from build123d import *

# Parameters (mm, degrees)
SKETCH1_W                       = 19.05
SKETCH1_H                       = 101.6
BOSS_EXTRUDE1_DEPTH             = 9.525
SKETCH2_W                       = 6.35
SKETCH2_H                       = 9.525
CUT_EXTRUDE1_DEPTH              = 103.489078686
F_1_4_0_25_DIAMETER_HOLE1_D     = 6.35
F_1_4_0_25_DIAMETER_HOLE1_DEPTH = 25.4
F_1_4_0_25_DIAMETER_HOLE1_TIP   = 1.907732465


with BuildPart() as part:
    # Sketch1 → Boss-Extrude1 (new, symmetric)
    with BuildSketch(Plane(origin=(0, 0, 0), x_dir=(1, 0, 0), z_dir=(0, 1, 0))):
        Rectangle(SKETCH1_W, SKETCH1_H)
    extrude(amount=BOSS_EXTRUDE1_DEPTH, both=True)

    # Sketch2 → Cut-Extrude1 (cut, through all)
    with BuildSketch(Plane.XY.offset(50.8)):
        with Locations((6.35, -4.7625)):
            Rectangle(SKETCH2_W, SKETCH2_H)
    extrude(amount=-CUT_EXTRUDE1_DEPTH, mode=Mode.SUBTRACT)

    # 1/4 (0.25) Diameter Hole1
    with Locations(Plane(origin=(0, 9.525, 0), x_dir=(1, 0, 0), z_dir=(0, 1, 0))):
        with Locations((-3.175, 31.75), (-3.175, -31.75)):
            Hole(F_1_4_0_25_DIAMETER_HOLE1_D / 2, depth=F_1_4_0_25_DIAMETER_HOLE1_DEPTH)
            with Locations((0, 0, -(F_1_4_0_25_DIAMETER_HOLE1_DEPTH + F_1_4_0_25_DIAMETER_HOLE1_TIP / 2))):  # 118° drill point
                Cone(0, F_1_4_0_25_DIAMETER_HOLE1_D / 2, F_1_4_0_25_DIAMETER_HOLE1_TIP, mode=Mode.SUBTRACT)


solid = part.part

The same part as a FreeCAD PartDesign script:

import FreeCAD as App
import Part
import Sketcher

V = App.Vector
Q = App.Units.Quantity


def add_polygon(sketch, points):
    """Adds a closed chain of lines whose ends are joined by coincident constraints."""
    first, n = sketch.GeometryCount, len(points)
    for a, b in zip(points, points[1:] + points[:1]):
        sketch.addGeometry(Part.LineSegment(App.Vector(*a, 0), App.Vector(*b, 0)), False)
    for i in range(n):
        sketch.addConstraint(Sketcher.Constraint("Coincident", first + i, 2, first + (i + 1) % n, 1))

doc = App.newDocument("Part")
body = doc.addObject("PartDesign::Body", "Body")

sketch1 = body.newObject("Sketcher::SketchObject", "Sketch")
sketch1.AttachmentSupport = (doc.getObject("XZ_Plane"), [""])
sketch1.MapMode = "FlatFace"
add_polygon(sketch1, [(-10, -51), (-10, 51), (10, 51), (10, -51)])
sketch1.addConstraint(Sketcher.Constraint("Vertical", 0))
sketch1.addConstraint(Sketcher.Constraint("Horizontal", 1))
sketch1.addConstraint(Sketcher.Constraint("Vertical", 2))
sketch1.addConstraint(Sketcher.Constraint("Horizontal", 3))
sketch1.addConstraint(Sketcher.Constraint("Symmetric", 0, 2, 2, 2, -1, 1))
sketch1.addConstraint(Sketcher.Constraint("DistanceY", 0, 1, 0, 2, Q("4 in")))
sketch1.addConstraint(Sketcher.Constraint("DistanceX", 1, 1, 1, 2, Q("0.75 in")))
pad1 = body.newObject("PartDesign::Pad", "Pad")
pad1.Profile = sketch1
pad1.Length = Q("0.75 in")
pad1.Midplane = True

sketch2 = body.newObject("Sketcher::SketchObject", "Sketch001")
sketch2.AttachmentSupport = (doc.getObject("XY_Plane"), [""])
sketch2.MapMode = "FlatFace"
sketch2.AttachmentOffset = App.Placement(V(0, 0, 2 * 25.4), App.Rotation())
add_polygon(sketch2, [(3, 0), (3, -10), (10, -10), (10, 0)])
sketch2.addConstraint(Sketcher.Constraint("Vertical", 0))
sketch2.addConstraint(Sketcher.Constraint("Horizontal", 1))
sketch2.addConstraint(Sketcher.Constraint("Vertical", 2))
sketch2.addConstraint(Sketcher.Constraint("Horizontal", 3))
sketch2.addConstraint(Sketcher.Constraint("PointOnObject", 2, 2, -1))
sketch2.addConstraint(Sketcher.Constraint("DistanceX", 1, 1, 1, 2, Q("0.25 in")))
sketch2.addConstraint(Sketcher.Constraint("DistanceY", 0, 2, 0, 1, Q("0.375 in")))
sketch2.addConstraint(Sketcher.Constraint("DistanceX", -1, 1, 0, 2, Q("0.125 in")))
pocket1 = body.newObject("PartDesign::Pocket", "Pocket")
pocket1.Profile = sketch2
pocket1.Type = "ThroughAll"

sketch3 = body.newObject("Sketcher::SketchObject", "Sketch002")
sketch3.AttachmentSupport = (doc.getObject("XZ_Plane"), [""])
sketch3.MapMode = "FlatFace"
sketch3.AttachmentOffset = App.Placement(V(0, 0, -0.375 * 25.4), App.Rotation())
sketch3.addGeometry(Part.Circle(V(-3.2, -31.8, 0), V(0, 0, 1), 3.2), False)
sketch3.addGeometry(Part.Circle(V(-3.2, 31.8, 0), V(0, 0, 1), 3.2), False)
sketch3.addConstraint(Sketcher.Constraint("Equal", 0, 1))
sketch3.addConstraint(Sketcher.Constraint("Symmetric", 0, 3, 1, 3, -1))
sketch3.addConstraint(Sketcher.Constraint("Diameter", 0, Q("0.25 in")))
sketch3.addConstraint(Sketcher.Constraint("DistanceY", 0, 3, 1, 3, Q("2.5 in")))
sketch3.addConstraint(Sketcher.Constraint("DistanceX", 0, 3, -1, 1, Q("0.125 in")))
doc.recompute()
hole = body.newObject("PartDesign::Hole", "Hole")
hole.Profile = sketch3
hole.ThreadType = "None"
hole.Diameter = Q("0.25 in")
hole.DepthType = "Dimension"
hole.Depth = Q("1 in")
hole.DrillPoint = "Angled"
hole.DrillPointAngle = 118
hole.Reversed = True

doc.recompute()
